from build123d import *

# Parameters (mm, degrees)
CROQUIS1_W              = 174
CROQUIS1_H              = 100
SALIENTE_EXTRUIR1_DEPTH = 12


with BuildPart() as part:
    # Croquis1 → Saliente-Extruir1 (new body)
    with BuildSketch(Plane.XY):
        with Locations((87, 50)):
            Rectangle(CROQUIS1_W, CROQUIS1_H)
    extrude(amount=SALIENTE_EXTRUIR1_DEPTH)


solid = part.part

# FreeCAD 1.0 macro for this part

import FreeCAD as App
import Part
import Sketcher

V = App.Vector


def add_polygon(sketch, points):
    """Adds a closed chain of lines whose ends are joined by coincident constraints."""
    first, n = sketch.GeometryCount, len(points)
    for a, b in zip(points, points[1:] + points[:1]):
        sketch.addGeometry(Part.LineSegment(App.Vector(*a, 0), App.Vector(*b, 0)), False)
    for i in range(n):
        sketch.addConstraint(Sketcher.Constraint("Coincident", first + i, 2, first + (i + 1) % n, 1))

doc = App.newDocument("Part")
body = doc.addObject("PartDesign::Body", "Body")

sketch1 = body.newObject("Sketcher::SketchObject", "Sketch")
sketch1.AttachmentSupport = (doc.getObject("XY_Plane"), [""])
sketch1.MapMode = "FlatFace"
add_polygon(sketch1, [(0, 100), (0, 0), (174, 0), (174, 100)])
sketch1.addConstraint([
    Sketcher.Constraint("Vertical", 0),
    Sketcher.Constraint("Horizontal", 1),
    Sketcher.Constraint("Vertical", 2),
    Sketcher.Constraint("Horizontal", 3),
    Sketcher.Constraint("Coincident", 0, 2, -1, 1),
    Sketcher.Constraint("DistanceX", 1, 1, 1, 2, 174.0),
    Sketcher.Constraint("DistanceY", 0, 2, 0, 1, 100.0),
])
pad1 = body.newObject("PartDesign::Pad", "Pad")
pad1.Profile = sketch1
pad1.Length = 12

doc.recompute()
